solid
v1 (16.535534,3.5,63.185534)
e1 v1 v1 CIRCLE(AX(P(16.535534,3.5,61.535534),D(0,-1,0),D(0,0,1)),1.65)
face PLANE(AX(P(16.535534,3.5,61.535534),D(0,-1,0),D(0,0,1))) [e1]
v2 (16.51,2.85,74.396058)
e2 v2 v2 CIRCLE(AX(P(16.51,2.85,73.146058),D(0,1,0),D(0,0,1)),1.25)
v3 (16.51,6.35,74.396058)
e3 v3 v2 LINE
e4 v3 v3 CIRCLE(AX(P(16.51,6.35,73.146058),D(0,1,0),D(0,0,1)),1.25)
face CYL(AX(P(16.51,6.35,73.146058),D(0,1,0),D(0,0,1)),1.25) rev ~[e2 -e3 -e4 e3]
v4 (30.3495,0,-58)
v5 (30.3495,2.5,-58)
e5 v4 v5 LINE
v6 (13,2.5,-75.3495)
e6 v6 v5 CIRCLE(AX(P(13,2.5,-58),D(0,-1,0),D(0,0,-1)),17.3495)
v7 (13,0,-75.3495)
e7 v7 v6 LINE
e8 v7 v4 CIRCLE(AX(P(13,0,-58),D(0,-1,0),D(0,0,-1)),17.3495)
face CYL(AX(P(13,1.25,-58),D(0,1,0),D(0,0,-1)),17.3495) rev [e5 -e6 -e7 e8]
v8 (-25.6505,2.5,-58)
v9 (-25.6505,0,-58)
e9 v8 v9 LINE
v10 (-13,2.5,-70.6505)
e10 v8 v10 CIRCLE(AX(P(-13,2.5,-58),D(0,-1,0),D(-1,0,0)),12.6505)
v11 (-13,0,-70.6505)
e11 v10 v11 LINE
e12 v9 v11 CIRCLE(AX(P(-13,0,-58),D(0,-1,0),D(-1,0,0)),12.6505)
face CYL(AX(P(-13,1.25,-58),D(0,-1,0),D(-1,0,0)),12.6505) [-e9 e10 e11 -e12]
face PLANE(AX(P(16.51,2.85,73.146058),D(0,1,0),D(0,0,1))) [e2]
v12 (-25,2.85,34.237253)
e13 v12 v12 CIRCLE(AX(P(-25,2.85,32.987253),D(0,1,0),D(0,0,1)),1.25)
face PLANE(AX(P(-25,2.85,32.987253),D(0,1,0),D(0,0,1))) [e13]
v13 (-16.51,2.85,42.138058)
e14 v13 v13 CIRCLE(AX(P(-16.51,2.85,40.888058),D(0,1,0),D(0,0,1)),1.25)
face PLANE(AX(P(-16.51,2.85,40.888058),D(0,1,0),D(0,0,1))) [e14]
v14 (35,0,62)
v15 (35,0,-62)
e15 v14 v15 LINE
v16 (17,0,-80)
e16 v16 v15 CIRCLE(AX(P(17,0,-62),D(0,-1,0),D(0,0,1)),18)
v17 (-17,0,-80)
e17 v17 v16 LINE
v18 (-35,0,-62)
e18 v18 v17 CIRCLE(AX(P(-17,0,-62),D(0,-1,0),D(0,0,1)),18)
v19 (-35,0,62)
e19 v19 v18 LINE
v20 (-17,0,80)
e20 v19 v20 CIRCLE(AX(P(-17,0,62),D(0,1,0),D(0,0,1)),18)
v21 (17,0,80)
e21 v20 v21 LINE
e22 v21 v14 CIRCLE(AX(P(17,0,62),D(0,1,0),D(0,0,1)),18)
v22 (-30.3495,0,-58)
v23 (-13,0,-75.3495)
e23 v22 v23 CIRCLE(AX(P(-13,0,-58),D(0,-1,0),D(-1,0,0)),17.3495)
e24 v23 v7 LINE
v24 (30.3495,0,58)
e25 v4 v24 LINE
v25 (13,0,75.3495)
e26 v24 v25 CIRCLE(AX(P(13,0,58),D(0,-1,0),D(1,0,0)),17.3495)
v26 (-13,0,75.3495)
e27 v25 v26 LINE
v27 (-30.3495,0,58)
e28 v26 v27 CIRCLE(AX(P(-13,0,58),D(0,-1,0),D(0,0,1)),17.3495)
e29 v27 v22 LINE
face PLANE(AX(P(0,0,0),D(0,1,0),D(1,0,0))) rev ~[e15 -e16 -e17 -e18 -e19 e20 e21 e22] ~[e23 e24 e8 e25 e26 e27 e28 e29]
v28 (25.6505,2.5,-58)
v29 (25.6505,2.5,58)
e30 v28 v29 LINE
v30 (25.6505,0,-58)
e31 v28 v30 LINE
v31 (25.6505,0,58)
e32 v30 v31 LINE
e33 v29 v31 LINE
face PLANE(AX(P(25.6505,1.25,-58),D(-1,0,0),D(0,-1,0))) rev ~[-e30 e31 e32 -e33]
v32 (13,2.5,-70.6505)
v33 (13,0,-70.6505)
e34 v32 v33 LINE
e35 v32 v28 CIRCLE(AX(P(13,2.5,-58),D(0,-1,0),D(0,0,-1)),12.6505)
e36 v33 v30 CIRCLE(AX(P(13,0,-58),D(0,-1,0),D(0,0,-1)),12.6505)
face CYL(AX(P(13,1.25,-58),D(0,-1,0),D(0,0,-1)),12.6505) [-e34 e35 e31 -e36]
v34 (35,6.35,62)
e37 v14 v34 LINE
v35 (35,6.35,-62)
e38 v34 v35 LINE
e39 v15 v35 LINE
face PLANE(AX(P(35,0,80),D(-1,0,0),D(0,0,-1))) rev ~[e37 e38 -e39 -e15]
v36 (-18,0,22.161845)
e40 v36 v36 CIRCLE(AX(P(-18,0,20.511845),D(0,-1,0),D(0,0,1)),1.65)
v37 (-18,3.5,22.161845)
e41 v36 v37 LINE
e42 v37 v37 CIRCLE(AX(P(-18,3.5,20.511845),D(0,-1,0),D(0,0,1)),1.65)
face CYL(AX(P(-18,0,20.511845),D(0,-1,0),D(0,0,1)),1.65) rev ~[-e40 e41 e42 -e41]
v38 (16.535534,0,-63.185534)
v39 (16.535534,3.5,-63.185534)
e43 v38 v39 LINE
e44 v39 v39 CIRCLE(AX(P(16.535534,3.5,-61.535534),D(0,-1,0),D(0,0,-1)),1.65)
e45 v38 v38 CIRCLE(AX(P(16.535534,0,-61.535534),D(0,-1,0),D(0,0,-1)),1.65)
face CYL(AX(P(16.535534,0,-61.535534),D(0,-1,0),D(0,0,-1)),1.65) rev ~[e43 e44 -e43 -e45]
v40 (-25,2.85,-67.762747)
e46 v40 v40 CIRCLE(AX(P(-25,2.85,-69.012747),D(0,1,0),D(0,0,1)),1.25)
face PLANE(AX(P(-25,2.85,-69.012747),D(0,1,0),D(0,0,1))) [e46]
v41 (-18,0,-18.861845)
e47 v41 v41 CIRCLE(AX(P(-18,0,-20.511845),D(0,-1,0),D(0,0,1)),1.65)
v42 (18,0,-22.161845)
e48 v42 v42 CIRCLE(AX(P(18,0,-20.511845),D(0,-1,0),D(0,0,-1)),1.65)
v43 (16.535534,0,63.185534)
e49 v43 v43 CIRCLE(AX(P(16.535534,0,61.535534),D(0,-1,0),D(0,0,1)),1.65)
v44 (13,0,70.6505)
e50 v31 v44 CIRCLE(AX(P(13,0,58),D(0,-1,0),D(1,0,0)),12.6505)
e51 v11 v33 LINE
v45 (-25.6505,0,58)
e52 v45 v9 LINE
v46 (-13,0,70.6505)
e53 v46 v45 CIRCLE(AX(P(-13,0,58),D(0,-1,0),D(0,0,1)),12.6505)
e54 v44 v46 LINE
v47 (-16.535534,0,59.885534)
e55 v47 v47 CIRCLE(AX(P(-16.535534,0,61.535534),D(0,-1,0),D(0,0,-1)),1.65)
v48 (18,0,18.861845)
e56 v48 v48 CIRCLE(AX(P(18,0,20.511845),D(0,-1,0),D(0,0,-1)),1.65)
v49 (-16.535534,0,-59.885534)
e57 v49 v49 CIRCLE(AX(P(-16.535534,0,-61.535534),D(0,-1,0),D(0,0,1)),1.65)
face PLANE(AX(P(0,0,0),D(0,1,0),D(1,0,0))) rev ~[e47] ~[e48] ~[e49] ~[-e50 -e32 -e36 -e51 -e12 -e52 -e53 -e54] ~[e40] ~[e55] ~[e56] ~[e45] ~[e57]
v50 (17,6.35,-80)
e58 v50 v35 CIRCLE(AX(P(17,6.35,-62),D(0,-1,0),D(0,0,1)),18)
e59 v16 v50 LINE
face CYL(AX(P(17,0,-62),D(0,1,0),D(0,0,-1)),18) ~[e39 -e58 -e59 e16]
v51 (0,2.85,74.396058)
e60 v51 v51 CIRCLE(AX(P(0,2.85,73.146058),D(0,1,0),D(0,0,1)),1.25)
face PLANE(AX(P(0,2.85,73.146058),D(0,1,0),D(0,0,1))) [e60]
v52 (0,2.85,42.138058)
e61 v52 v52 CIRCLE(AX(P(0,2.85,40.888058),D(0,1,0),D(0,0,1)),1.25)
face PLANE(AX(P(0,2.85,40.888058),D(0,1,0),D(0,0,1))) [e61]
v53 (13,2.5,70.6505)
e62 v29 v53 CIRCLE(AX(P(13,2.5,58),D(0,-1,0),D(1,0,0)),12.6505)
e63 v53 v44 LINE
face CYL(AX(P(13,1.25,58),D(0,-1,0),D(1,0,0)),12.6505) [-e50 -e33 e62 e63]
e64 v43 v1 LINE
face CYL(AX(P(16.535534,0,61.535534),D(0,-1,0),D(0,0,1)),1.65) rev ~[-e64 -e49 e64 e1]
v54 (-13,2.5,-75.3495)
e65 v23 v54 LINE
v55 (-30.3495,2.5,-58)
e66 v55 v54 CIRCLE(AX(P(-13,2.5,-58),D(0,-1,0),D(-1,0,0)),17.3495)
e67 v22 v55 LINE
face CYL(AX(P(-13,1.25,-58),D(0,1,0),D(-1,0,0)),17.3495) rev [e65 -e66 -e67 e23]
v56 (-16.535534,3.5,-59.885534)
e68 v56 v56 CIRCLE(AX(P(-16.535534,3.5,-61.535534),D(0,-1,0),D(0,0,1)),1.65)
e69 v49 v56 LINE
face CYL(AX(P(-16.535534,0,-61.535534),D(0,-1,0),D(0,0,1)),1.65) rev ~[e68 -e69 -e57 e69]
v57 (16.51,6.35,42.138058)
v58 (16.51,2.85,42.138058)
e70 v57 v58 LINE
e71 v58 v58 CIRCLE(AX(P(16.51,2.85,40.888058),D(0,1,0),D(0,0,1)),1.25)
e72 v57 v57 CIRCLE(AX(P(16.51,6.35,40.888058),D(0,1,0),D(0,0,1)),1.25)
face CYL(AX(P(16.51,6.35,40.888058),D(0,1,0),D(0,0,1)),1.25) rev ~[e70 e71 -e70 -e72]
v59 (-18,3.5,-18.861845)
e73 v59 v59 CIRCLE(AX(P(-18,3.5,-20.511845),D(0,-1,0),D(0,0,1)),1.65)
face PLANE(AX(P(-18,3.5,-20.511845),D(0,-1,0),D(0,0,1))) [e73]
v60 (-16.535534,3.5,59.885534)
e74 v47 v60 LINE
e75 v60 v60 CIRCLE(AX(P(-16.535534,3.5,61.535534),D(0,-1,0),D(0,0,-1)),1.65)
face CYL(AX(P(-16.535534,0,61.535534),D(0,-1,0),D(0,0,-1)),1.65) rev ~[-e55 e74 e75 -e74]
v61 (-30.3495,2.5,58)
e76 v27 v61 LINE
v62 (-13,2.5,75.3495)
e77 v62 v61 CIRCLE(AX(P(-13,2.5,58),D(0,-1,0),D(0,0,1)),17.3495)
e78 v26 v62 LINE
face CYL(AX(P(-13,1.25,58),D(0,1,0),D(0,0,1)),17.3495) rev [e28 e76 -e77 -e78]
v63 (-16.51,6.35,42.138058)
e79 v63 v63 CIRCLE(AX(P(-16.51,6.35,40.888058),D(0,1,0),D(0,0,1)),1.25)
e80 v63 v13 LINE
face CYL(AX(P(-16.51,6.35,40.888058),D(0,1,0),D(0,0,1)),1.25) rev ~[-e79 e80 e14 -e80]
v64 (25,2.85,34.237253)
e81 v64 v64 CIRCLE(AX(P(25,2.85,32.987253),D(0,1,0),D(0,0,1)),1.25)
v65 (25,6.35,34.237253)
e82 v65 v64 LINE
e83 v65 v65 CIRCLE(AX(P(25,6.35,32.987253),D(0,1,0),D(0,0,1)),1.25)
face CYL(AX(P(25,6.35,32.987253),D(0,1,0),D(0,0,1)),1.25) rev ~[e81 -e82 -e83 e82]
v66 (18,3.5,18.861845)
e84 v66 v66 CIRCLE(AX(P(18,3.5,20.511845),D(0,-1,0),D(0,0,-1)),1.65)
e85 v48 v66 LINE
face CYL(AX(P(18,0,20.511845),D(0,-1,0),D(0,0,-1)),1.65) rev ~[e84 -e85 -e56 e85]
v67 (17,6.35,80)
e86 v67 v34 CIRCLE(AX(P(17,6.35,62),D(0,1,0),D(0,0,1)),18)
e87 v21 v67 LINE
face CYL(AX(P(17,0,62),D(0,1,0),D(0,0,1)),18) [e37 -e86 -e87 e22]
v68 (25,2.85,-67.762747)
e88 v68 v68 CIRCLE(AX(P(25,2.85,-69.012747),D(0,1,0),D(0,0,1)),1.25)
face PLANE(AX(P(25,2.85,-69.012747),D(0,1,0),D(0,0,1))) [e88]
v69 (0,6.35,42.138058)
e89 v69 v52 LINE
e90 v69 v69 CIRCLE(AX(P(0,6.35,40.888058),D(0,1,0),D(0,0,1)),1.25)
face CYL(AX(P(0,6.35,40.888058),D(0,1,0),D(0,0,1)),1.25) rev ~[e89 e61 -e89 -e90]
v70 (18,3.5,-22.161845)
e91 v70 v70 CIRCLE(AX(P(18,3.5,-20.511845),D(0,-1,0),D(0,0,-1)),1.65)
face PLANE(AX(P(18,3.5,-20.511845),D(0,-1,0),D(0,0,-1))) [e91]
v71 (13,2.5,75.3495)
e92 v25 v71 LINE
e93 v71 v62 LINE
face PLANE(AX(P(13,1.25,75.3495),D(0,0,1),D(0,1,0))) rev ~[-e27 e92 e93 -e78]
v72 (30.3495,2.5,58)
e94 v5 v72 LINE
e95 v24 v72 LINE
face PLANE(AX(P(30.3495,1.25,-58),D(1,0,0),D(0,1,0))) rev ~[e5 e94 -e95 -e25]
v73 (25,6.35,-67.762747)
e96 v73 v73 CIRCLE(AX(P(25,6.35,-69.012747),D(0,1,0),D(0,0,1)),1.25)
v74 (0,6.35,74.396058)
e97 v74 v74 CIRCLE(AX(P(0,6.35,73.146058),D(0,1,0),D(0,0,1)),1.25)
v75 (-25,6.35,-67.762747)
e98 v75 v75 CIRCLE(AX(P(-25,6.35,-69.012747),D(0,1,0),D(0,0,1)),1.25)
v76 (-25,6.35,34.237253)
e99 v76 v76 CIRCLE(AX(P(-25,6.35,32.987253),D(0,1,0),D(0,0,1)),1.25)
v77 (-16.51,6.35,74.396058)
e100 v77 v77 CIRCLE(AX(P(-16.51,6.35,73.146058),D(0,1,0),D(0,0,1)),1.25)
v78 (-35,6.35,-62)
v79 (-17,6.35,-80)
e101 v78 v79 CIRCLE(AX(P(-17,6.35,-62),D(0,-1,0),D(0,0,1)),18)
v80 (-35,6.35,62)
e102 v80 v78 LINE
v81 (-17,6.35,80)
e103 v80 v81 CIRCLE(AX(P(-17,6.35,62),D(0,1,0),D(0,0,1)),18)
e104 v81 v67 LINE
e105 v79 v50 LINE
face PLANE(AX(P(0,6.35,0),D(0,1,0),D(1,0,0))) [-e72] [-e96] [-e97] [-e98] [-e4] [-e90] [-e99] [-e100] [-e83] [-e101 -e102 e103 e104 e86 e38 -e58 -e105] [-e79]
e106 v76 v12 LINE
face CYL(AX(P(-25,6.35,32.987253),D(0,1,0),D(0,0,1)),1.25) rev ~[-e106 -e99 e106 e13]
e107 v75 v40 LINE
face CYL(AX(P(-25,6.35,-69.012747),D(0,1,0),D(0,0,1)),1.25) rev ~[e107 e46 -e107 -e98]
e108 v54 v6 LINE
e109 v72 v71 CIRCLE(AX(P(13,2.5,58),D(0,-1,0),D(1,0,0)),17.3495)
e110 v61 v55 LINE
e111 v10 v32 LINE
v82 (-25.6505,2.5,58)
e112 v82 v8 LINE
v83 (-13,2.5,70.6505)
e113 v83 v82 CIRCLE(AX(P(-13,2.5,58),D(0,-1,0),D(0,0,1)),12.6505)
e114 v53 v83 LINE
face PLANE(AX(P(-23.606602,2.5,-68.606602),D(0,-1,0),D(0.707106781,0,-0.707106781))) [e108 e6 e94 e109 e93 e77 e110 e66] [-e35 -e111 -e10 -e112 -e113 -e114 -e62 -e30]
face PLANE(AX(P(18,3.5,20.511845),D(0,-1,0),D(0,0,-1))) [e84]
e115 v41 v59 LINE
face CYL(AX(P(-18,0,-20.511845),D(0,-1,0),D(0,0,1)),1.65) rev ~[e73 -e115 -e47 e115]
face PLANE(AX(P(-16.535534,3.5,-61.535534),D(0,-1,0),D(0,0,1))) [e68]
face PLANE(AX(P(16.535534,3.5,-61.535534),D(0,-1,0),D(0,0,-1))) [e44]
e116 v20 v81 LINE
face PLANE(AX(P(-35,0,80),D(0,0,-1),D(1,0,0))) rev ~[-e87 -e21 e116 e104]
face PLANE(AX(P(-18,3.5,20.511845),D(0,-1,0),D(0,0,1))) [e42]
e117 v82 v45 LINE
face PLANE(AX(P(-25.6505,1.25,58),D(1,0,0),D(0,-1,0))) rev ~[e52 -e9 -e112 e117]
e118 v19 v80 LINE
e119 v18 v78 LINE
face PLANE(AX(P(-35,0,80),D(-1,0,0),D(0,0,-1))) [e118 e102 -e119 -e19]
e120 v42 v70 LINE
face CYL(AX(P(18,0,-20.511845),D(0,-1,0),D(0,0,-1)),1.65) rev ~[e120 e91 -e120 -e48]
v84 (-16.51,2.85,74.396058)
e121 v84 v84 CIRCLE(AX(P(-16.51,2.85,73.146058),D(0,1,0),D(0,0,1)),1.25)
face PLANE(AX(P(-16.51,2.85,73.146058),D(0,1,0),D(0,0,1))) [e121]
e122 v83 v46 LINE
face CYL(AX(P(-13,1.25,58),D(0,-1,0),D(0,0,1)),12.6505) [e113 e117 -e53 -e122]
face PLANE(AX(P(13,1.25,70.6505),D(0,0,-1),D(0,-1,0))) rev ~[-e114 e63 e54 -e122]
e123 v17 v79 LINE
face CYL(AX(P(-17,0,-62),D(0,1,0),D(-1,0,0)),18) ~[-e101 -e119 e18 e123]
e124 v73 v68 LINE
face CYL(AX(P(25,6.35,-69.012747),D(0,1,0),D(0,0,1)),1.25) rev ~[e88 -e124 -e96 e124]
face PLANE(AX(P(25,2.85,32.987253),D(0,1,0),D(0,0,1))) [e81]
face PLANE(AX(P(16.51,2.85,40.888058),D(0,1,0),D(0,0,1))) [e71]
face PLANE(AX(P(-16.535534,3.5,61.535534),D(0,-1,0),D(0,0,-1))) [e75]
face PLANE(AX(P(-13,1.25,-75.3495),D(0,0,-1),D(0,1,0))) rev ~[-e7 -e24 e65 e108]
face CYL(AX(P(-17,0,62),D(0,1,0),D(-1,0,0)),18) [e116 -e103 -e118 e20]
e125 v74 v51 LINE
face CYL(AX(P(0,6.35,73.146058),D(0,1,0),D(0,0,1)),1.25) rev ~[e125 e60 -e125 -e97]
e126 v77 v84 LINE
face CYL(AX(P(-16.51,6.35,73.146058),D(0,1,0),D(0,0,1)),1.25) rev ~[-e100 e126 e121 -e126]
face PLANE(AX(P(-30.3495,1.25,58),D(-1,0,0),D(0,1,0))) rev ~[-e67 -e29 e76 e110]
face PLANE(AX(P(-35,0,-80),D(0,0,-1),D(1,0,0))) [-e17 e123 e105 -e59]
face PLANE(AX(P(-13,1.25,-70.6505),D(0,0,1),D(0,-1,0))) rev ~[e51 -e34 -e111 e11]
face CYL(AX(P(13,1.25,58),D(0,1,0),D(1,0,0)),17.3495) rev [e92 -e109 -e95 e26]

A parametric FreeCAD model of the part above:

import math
import FreeCAD as App
import Part
import Sketcher
Q = App.Units.Quantity


def edges_at(feature, points):
    """Names of the edges that pass closest to the given points."""
    edges = feature.Shape.Edges
    near = lambda p: min(range(len(edges)), key=lambda i: edges[i].distToShape(Part.Vertex(*p))[0])
    return sorted({f"Edge{near(p) + 1}" for p in points})


def add_polygon(sketch, points):
    """Adds a closed chain of lines whose ends are joined by coincident constraints."""
    first, n = sketch.GeometryCount, len(points)
    for a, b in zip(points, points[1:] + points[:1]):
        sketch.addGeometry(Part.LineSegment(App.Vector(*a, 0), App.Vector(*b, 0)), False)
    for i in range(n):
        sketch.addConstraint(Sketcher.Constraint("Coincident", first + i, 2, first + (i + 1) % n, 1))

doc = App.newDocument("Part")
body = doc.addObject("PartDesign::Body", "Body")

# Sketch on XZ plane
sketch1 = doc.addObject("Sketcher::SketchObject", "Sketch")
body.addObject(sketch1)
sketch1.AttachmentSupport = (doc.XZ_Plane, [""])
sketch1.MapMode = "FlatFace"
add_polygon(sketch1, [(-35, -80), (-35, 80), (35, 80), (35, -80)])  # lines 0-3
sketch1.addConstraint([
    Sketcher.Constraint("Vertical", 0),
    Sketcher.Constraint("Horizontal", 1),
    Sketcher.Constraint("Vertical", 2),
    Sketcher.Constraint("Horizontal", 3),
    Sketcher.Constraint("Symmetric", 0, 2, 2, 2, -1, 1),
    Sketcher.Constraint("DistanceX", 1, 1, 1, 2, Q("70 mm")),
    Sketcher.Constraint("DistanceY", 0, 1, 0, 2, Q("160 mm")),
])
pad1 = doc.addObject("PartDesign::Pad", "Pad")
body.addObject(pad1)
pad1.Profile = sketch1
pad1.Length = 6.35
pad1.Reversed = True

# Sketch on XY plane
sketch2 = doc.addObject("Sketcher::SketchObject", "Sketch001")
body.addObject(sketch2)
sketch2.AttachmentSupport = (doc.XY_Plane, [""])
sketch2.MapMode = "FlatFace"
add_polygon(sketch2, [(25.7, 2.5), (25.7, 0), (30.3, 0), (30.3, 2.5)])  # lines 0-3
sketch2.addConstraint([
    Sketcher.Constraint("Vertical", 0),
    Sketcher.Constraint("Horizontal", 1),
    Sketcher.Constraint("Vertical", 2),
    Sketcher.Constraint("Horizontal", 3),
    Sketcher.Constraint("PointOnObject", 0, 2, -1),
    Sketcher.Constraint("DistanceY", 0, 2, 0, 1, Q("2.5 mm")),
    Sketcher.Constraint("DistanceX", 1, 1, 1, 2, Q("4.699 mm")),
    Sketcher.Constraint("DistanceX", -1, 1, 0, 2, Q("25.6505 mm")),
])

# Sketch on XZ plane
sketch3 = doc.addObject("Sketcher::SketchObject", "Sketch002")
body.addObject(sketch3)
sketch3.AttachmentSupport = (doc.XZ_Plane, [""])
sketch3.MapMode = "FlatFace"
sketch3.addGeometry([
    Part.LineSegment(App.Vector(-13, -73, 0), App.Vector(13, -73, 0)),  # 0
    Part.ArcOfCircle(Part.Circle(App.Vector(13, -58, 0), App.Vector(0, 0, 1), 15), math.radians(-90), math.radians(0)),  # 1
    Part.LineSegment(App.Vector(28, -58, 0), App.Vector(28, 58, 0)),  # 2
    Part.ArcOfCircle(Part.Circle(App.Vector(13, 58, 0), App.Vector(0, 0, 1), 15), math.radians(0), math.radians(90)),  # 3
    Part.LineSegment(App.Vector(13, 73, 0), App.Vector(-13, 73, 0)),  # 4
    Part.ArcOfCircle(Part.Circle(App.Vector(-13, 58, 0), App.Vector(0, 0, 1), 15), math.radians(90), math.radians(180)),  # 5
    Part.LineSegment(App.Vector(-28, 58, 0), App.Vector(-28, -58, 0)),  # 6
    Part.ArcOfCircle(Part.Circle(App.Vector(-13, -58, 0), App.Vector(0, 0, 1), 15), math.radians(180), math.radians(270)),  # 7
], False)
sketch3.addConstraint([
    Sketcher.Constraint("Tangent", 0, 2, 1, 1),
    Sketcher.Constraint("Tangent", 1, 2, 2, 1),
    Sketcher.Constraint("Tangent", 2, 2, 3, 1),
    Sketcher.Constraint("Tangent", 3, 2, 4, 1),
    Sketcher.Constraint("Tangent", 4, 2, 5, 1),
    Sketcher.Constraint("Tangent", 5, 2, 6, 1),
    Sketcher.Constraint("Tangent", 6, 2, 7, 1),
    Sketcher.Constraint("Tangent", 7, 2, 0, 1),
    Sketcher.Constraint("Horizontal", 0),
    Sketcher.Constraint("Vertical", 2),
    Sketcher.Constraint("Horizontal", 4),
    Sketcher.Constraint("Vertical", 6),
    Sketcher.Constraint("Equal", 1, 3),
    Sketcher.Constraint("Equal", 3, 5),
    Sketcher.Constraint("Equal", 5, 7),
    Sketcher.Constraint("Symmetric", 1, 3, 5, 3, -1, 1),
    Sketcher.Constraint("Radius", 1, Q("15 mm")),
    Sketcher.Constraint("DistanceX", 0, 1, 0, 2, Q("26 mm")),
    Sketcher.Constraint("DistanceY", 2, 1, 2, 2, Q("116 mm")),
])
doc.recompute()

subtractivepipe = doc.addObject("PartDesign::SubtractivePipe", "SubtractivePipe")
body.addObject(subtractivepipe)
subtractivepipe.Profile = sketch2
subtractivepipe.Spine = (sketch3, ["Edge1", "Edge2", "Edge3", "Edge4", "Edge5", "Edge6", "Edge7", "Edge8"])
doc.recompute()

fillet = doc.addObject("PartDesign::Fillet", "Fillet")
body.addObject(fillet)
fillet.Base = (subtractivepipe, edges_at(subtractivepipe, [
    (35, 3.175, 80),
    (-35, 3.175, 80),
    (-35, 3.175, -80),
    (35, 3.175, -80),
]))
fillet.Radius = 18

# Sketch on XZ plane
sketch4 = doc.addObject("Sketcher::SketchObject", "Sketch003")
body.addObject(sketch4)
sketch4.AttachmentSupport = (doc.XZ_Plane, [""])
sketch4.MapMode = "FlatFace"
sketch4.addGeometry([
    Part.Circle(App.Vector(16.5, 61.5, 0), App.Vector(0, 0, 1), 1.6),  # 0
    Part.Circle(App.Vector(18, -20.5, 0), App.Vector(0, 0, 1), 1.6),  # 1
    Part.Circle(App.Vector(18, 20.5, 0), App.Vector(0, 0, 1), 1.6),  # 2
    Part.Circle(App.Vector(-16.5, 61.5, 0), App.Vector(0, 0, 1), 1.6),  # 3
    Part.Circle(App.Vector(-18, 20.5, 0), App.Vector(0, 0, 1), 1.6),  # 4
    Part.Circle(App.Vector(16.5, -61.5, 0), App.Vector(0, 0, 1), 1.6),  # 5
    Part.Circle(App.Vector(-18, -20.5, 0), App.Vector(0, 0, 1), 1.6),  # 6
    Part.Circle(App.Vector(-16.5, -61.5, 0), App.Vector(0, 0, 1), 1.6),  # 7
], False)
sketch4.addConstraint([
    Sketcher.Constraint("Equal", 0, 1),
    Sketcher.Constraint("Equal", 1, 2),
    Sketcher.Constraint("Equal", 2, 3),
    Sketcher.Constraint("Equal", 3, 4),
    Sketcher.Constraint("Equal", 4, 5),
    Sketcher.Constraint("Equal", 5, 6),
    Sketcher.Constraint("Equal", 6, 7),
    Sketcher.Constraint("Symmetric", 1, 3, 4, 3, -1, 1),
    Sketcher.Constraint("Symmetric", 3, 3, 5, 3, -1, 1),
    Sketcher.Constraint("Symmetric", 2, 3, 6, 3, -1, 1),
    Sketcher.Constraint("Symmetric", 0, 3, 7, 3, -1, 1),
    Sketcher.Constraint("Symmetric", 0, 3, 3, 3, -2),
    Sketcher.Constraint("Symmetric", 2, 3, 4, 3, -2),
    Sketcher.Constraint("Diameter", 0, Q("3.3 mm")),
    Sketcher.Constraint("DistanceX", -1, 1, 1, 3, Q("18 mm")),
    Sketcher.Constraint("DistanceY", 1, 3, 0, 3, Q("82.047379 mm")),
    Sketcher.Constraint("DistanceY", 1, 3, 2, 3, Q("41.023689 mm")),
    Sketcher.Constraint("DistanceX", -1, 1, 0, 3, Q("16.535534 mm")),
])
pocket1 = doc.addObject("PartDesign::Pocket", "Pocket")
body.addObject(pocket1)
pocket1.Profile = sketch4
pocket1.Length = 3.5

# Sketch on XZ plane
sketch5 = doc.addObject("Sketcher::SketchObject", "Sketch004")
body.addObject(sketch5)
sketch5.AttachmentSupport = (doc.XZ_Plane, [""])
sketch5.MapMode = "FlatFace"
sketch5.AttachmentOffset = App.Placement(App.Vector(0, 0, -6.35), App.Rotation())
sketch5.addGeometry([
    Part.Circle(App.Vector(-16.5, 40.9, 0), App.Vector(0, 0, 1), 1.2),  # 0
    Part.Circle(App.Vector(0, 40.9, 0), App.Vector(0, 0, 1), 1.2),  # 1
    Part.Circle(App.Vector(16.5, 40.9, 0), App.Vector(0, 0, 1), 1.2),  # 2
    Part.Circle(App.Vector(16.5, 73.1, 0), App.Vector(0, 0, 1), 1.2),  # 3
    Part.Circle(App.Vector(0, 73.1, 0), App.Vector(0, 0, 1), 1.2),  # 4
    Part.Circle(App.Vector(-16.5, 73.1, 0), App.Vector(0, 0, 1), 1.2),  # 5
    Part.Circle(App.Vector(-25, 33, 0), App.Vector(0, 0, 1), 1.2),  # 6
    Part.Circle(App.Vector(25, 33, 0), App.Vector(0, 0, 1), 1.2),  # 7
    Part.Circle(App.Vector(25, -69, 0), App.Vector(0, 0, 1), 1.2),  # 8
    Part.Circle(App.Vector(-25, -69, 0), App.Vector(0, 0, 1), 1.2),  # 9
], False)
sketch5.addConstraint([
    Sketcher.Constraint("Equal", 0, 1),
    Sketcher.Constraint("Equal", 1, 2),
    Sketcher.Constraint("Equal", 2, 3),
    Sketcher.Constraint("Equal", 3, 4),
    Sketcher.Constraint("Equal", 4, 5),
    Sketcher.Constraint("Equal", 5, 6),
    Sketcher.Constraint("Equal", 6, 7),
    Sketcher.Constraint("Equal", 7, 8),
    Sketcher.Constraint("Equal", 8, 9),
    Sketcher.Constraint("Symmetric", 0, 3, 2, 3, -2),
    Sketcher.Constraint("Symmetric", 3, 3, 5, 3, -2),
    Sketcher.Constraint("Symmetric", 6, 3, 7, 3, -2),
    Sketcher.Constraint("Symmetric", 8, 3, 9, 3, -2),
    Sketcher.Constraint("PointOnObject", 1, 3, -2),
    Sketcher.Constraint("PointOnObject", 4, 3, -2),
    Sketcher.Constraint("Horizontal", 0, 3, 1, 3),
    Sketcher.Constraint("Horizontal", 3, 3, 4, 3),
    Sketcher.Constraint("Vertical", 2, 3, 3, 3),
    Sketcher.Constraint("Vertical", 7, 3, 8, 3),
    Sketcher.Constraint("Diameter", 0, Q("2.5 mm")),
    Sketcher.Constraint("DistanceX", 6, 3, -1, 1, Q("25 mm")),
    Sketcher.Constraint("DistanceY", 8, 3, 7, 3, Q("102 mm")),
    Sketcher.Constraint("DistanceX", 0, 3, -1, 1, Q("16.51 mm")),
    Sketcher.Constraint("DistanceY", 2, 3, 3, 3, Q("32.258 mm")),
    Sketcher.Constraint("DistanceY", -1, 1, 0, 3, Q("40.888058 mm")),
    Sketcher.Constraint("DistanceY", -1, 1, 6, 3, Q("32.987253 mm")),
])
pocket2 = doc.addObject("PartDesign::Pocket", "Pocket001")
body.addObject(pocket2)
pocket2.Profile = sketch5
pocket2.Length = 3.5
pocket2.Reversed = True

doc.recompute()
